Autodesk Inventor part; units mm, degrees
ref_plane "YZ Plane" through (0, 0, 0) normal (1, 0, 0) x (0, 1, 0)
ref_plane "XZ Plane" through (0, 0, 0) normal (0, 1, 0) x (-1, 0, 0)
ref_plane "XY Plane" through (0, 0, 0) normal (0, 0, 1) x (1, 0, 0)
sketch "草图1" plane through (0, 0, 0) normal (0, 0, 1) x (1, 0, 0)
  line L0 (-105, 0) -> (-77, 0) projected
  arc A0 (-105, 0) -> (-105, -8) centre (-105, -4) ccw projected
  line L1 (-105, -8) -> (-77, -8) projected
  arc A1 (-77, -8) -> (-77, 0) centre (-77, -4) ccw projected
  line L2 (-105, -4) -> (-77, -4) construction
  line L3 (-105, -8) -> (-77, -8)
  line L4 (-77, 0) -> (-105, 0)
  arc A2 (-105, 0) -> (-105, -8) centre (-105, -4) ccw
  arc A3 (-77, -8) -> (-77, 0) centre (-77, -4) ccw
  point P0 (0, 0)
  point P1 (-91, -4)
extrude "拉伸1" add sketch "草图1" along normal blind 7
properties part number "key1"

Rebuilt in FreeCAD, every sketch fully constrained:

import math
import FreeCAD as App
import Part
import Sketcher

doc = App.newDocument("Part")
body = doc.addObject("PartDesign::Body", "Body")

sketch1 = body.newObject("Sketcher::SketchObject", "Sketch")
sketch1.AttachmentSupport = (doc.getObject("XY_Plane"), [""])
sketch1.MapMode = "FlatFace"
sketch1.addGeometry([
    Part.LineSegment(App.Vector(-77, 0, 0), App.Vector(-105, 0, 0)),
    Part.ArcOfCircle(Part.Circle(App.Vector(-105, -4, 0), App.Vector(0, 0, 1), 4), math.radians(90), math.radians(270)),
    Part.LineSegment(App.Vector(-105, -8, 0), App.Vector(-77, -8, 0)),
    Part.ArcOfCircle(Part.Circle(App.Vector(-77, -4, 0), App.Vector(0, 0, 1), 4), math.radians(-90), math.radians(90)),
], False)
sketch1.addConstraint([
    Sketcher.Constraint("Tangent", 0, 2, 1, 1),
    Sketcher.Constraint("Tangent", 1, 2, 2, 1),
    Sketcher.Constraint("Tangent", 2, 2, 3, 1),
    Sketcher.Constraint("Tangent", 3, 2, 0, 1),
    Sketcher.Constraint("Horizontal", 0),
    Sketcher.Constraint("Horizontal", 2),
    Sketcher.Constraint("PointOnObject", 0, 2, -1),
    Sketcher.Constraint("Radius", 1, 4.0),
    Sketcher.Constraint("DistanceX", 0, 2, 0, 1, 28.0),
    Sketcher.Constraint("DistanceX", 1, 3, -1, 1, 105.0),
])
pad1 = body.newObject("PartDesign::Pad", "Pad")
pad1.Profile = sketch1
pad1.Length = 7

doc.recompute()
